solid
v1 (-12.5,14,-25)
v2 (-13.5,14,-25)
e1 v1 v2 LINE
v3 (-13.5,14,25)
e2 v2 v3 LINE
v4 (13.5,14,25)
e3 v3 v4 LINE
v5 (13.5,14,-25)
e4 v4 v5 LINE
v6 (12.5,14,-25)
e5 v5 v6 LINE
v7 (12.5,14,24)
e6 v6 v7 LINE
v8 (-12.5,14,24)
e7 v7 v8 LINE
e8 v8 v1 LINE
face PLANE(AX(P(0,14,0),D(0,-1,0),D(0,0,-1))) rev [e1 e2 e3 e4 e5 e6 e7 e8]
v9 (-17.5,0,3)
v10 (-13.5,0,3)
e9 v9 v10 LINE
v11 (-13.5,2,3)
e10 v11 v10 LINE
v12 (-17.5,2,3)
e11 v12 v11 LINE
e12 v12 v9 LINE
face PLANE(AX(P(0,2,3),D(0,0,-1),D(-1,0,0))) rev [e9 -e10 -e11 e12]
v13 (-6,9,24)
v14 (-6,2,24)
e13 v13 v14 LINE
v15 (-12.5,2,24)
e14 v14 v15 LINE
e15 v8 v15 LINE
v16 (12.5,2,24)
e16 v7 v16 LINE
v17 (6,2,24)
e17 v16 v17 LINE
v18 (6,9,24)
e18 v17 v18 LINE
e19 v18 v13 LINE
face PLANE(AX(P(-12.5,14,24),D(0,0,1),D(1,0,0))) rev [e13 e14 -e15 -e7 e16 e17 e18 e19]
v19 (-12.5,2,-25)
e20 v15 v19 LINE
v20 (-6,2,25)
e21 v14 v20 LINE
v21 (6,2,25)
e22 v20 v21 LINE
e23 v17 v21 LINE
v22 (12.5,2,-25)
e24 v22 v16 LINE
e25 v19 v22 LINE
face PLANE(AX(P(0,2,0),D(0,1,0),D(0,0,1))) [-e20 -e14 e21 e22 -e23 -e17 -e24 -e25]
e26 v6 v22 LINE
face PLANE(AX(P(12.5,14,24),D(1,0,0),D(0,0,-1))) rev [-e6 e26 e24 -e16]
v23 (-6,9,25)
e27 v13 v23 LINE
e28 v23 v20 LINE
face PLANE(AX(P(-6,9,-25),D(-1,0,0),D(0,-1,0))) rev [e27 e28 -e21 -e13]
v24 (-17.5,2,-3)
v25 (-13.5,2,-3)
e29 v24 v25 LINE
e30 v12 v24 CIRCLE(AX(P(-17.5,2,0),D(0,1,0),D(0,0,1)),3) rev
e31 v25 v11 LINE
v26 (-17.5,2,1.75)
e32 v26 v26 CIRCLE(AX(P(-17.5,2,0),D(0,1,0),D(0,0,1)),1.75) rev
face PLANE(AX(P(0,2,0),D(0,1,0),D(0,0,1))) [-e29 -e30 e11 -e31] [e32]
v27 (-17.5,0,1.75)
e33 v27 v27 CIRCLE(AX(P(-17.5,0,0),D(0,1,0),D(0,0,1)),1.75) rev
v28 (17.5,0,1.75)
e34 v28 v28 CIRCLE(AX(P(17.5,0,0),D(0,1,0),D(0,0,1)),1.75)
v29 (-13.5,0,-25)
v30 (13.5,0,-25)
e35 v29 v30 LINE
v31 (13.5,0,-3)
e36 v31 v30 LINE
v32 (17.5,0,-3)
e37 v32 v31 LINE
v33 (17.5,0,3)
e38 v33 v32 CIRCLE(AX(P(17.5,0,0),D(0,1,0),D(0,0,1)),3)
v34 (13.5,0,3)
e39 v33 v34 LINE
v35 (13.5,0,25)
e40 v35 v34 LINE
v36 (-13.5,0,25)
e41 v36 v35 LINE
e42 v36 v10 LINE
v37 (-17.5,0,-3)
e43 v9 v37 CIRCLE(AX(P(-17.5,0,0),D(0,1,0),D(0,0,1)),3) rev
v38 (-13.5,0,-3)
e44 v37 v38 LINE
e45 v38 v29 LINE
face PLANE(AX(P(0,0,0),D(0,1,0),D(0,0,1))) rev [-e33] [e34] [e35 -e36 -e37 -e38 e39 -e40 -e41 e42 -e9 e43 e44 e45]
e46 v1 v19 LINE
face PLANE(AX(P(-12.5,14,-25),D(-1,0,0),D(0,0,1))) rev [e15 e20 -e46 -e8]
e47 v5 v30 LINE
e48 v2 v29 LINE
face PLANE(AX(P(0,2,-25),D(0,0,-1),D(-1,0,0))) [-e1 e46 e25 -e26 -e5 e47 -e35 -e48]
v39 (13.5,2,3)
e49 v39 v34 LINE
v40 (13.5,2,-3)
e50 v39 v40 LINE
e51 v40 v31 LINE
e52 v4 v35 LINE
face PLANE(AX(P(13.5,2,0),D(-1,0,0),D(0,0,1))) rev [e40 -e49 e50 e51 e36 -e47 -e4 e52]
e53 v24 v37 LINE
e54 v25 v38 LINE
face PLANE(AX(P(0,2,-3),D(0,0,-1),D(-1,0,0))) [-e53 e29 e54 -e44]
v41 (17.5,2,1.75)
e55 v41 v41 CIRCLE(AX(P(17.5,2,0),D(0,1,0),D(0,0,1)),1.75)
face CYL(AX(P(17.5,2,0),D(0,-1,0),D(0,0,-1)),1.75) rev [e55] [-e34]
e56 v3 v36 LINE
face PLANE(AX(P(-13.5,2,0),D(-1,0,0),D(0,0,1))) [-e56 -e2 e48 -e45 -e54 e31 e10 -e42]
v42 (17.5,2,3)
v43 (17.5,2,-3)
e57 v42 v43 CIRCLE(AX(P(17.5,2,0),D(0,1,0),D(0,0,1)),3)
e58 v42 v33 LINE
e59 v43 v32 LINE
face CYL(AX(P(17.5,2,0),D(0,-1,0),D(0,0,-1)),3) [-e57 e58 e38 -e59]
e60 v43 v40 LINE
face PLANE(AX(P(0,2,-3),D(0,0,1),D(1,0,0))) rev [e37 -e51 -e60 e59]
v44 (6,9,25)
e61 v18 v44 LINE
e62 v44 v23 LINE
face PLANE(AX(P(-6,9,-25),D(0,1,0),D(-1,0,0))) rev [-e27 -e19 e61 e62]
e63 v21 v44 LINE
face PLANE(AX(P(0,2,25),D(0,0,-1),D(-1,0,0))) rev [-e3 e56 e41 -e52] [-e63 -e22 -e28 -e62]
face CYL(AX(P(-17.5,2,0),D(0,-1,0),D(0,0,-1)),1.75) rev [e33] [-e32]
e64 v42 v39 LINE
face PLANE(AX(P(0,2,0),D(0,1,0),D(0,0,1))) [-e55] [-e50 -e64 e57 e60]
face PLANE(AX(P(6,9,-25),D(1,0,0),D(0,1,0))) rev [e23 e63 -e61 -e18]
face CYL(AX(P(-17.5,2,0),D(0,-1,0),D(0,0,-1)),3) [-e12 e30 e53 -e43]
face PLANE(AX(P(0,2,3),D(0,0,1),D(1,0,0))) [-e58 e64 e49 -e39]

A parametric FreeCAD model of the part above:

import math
import FreeCAD as App
import Part
import Sketcher

V = App.Vector
Q = App.Units.Quantity

doc = App.newDocument("Part")
body = doc.addObject("PartDesign::Body", "Body")

# Sketch on XZ plane
sketch1 = body.newObject("Sketcher::SketchObject", "Sketch")
sketch1.AttachmentSupport = (doc.getObject("XZ_Plane"), [""])
sketch1.MapMode = "FlatFace"
sketch1.addGeometry(Part.LineSegment(V(-13.5, 3, 0), V(-13.5, 25, 0)), False)
sketch1.addGeometry(Part.LineSegment(V(-13.5, 25, 0), V(13.5, 25, 0)), False)
sketch1.addGeometry(Part.LineSegment(V(13.5, 25, 0), V(13.5, 3, 0)), False)
sketch1.addGeometry(Part.LineSegment(V(13.5, 3, 0), V(17.5, 3, 0)), False)
sketch1.addGeometry(Part.ArcOfCircle(Part.Circle(V(17.5, 0, 0), V(0, 0, 1), 3), math.radians(-90), math.radians(90)), False)
sketch1.addGeometry(Part.LineSegment(V(17.5, -3, 0), V(13.5, -3, 0)), False)
sketch1.addGeometry(Part.LineSegment(V(13.5, -3, 0), V(13.5, -25, 0)), False)
sketch1.addGeometry(Part.LineSegment(V(13.5, -25, 0), V(-13.5, -25, 0)), False)
sketch1.addGeometry(Part.LineSegment(V(-13.5, -25, 0), V(-13.5, -3, 0)), False)
sketch1.addGeometry(Part.LineSegment(V(-13.5, -3, 0), V(-17.5, -3, 0)), False)
sketch1.addGeometry(Part.ArcOfCircle(Part.Circle(V(-17.5, 0, 0), V(0, 0, 1), 3), math.radians(90), math.radians(270)), False)
sketch1.addGeometry(Part.LineSegment(V(-17.5, 3, 0), V(-13.5, 3, 0)), False)
sketch1.addGeometry(Part.Circle(V(-17.5, 0, 0), V(0, 0, 1), 1.75), False)
sketch1.addGeometry(Part.Circle(V(17.5, 0, 0), V(0, 0, 1), 1.75), False)
sketch1.addConstraint(Sketcher.Constraint("Coincident", 0, 2, 1, 1))
sketch1.addConstraint(Sketcher.Constraint("Coincident", 1, 2, 2, 1))
sketch1.addConstraint(Sketcher.Constraint("Coincident", 2, 2, 3, 1))
sketch1.addConstraint(Sketcher.Constraint("Tangent", 3, 2, 4, 2))
sketch1.addConstraint(Sketcher.Constraint("Tangent", 4, 1, 5, 1))
sketch1.addConstraint(Sketcher.Constraint("Coincident", 5, 2, 6, 1))
sketch1.addConstraint(Sketcher.Constraint("Coincident", 6, 2, 7, 1))
sketch1.addConstraint(Sketcher.Constraint("Coincident", 7, 2, 8, 1))
sketch1.addConstraint(Sketcher.Constraint("Coincident", 8, 2, 9, 1))
sketch1.addConstraint(Sketcher.Constraint("Tangent", 9, 2, 10, 2))
sketch1.addConstraint(Sketcher.Constraint("Tangent", 10, 1, 11, 1))
sketch1.addConstraint(Sketcher.Constraint("Coincident", 11, 2, 0, 1))
sketch1.addConstraint(Sketcher.Constraint("Vertical", 0))
sketch1.addConstraint(Sketcher.Constraint("Horizontal", 1))
sketch1.addConstraint(Sketcher.Constraint("Vertical", 2))
sketch1.addConstraint(Sketcher.Constraint("Horizontal", 3))
sketch1.addConstraint(Sketcher.Constraint("Horizontal", 5))
sketch1.addConstraint(Sketcher.Constraint("Vertical", 6))
sketch1.addConstraint(Sketcher.Constraint("Horizontal", 7))
sketch1.addConstraint(Sketcher.Constraint("Vertical", 8))
sketch1.addConstraint(Sketcher.Constraint("Horizontal", 9))
sketch1.addConstraint(Sketcher.Constraint("Horizontal", 11))
sketch1.addConstraint(Sketcher.Constraint("Coincident", 12, 3, 10, 3))
sketch1.addConstraint(Sketcher.Constraint("Coincident", 13, 3, 4, 3))
sketch1.addConstraint(Sketcher.Constraint("Equal", 4, 10))
sketch1.addConstraint(Sketcher.Constraint("Equal", 12, 13))
sketch1.addConstraint(Sketcher.Constraint("Symmetric", 4, 3, 10, 3, -1, 1))
sketch1.addConstraint(Sketcher.Constraint("Symmetric", 0, 2, 6, 2, -1, 1))
sketch1.addConstraint(Sketcher.Constraint("Symmetric", 5, 2, 8, 2, -2))
sketch1.addConstraint(Sketcher.Constraint("Vertical", 2, 2, 5, 2))
sketch1.addConstraint(Sketcher.Constraint("Radius", 4, Q("3 mm")))
sketch1.addConstraint(Sketcher.Constraint("Diameter", 12, Q("3.5 mm")))
sketch1.addConstraint(Sketcher.Constraint("DistanceX", 1, 1, 1, 2, Q("27 mm")))
sketch1.addConstraint(Sketcher.Constraint("DistanceX", 3, 1, 3, 2, Q("4 mm")))
sketch1.addConstraint(Sketcher.Constraint("DistanceY", 0, 1, 0, 2, Q("22 mm")))
pad1 = body.newObject("PartDesign::Pad", "Pad")
pad1.Profile = sketch1
pad1.Length = 2
pad1.Reversed = True

# Sketch on XZ plane
sketch2 = body.newObject("Sketcher::SketchObject", "Sketch001")
sketch2.AttachmentSupport = (doc.getObject("XZ_Plane"), [""])
sketch2.MapMode = "FlatFace"
sketch2.AttachmentOffset = App.Placement(V(0, 0, -2), App.Rotation())
sketch2.addGeometry(Part.LineSegment(V(-13.5, -25, 0), V(-13.5, 25, 0)), False)
sketch2.addGeometry(Part.LineSegment(V(-13.5, 25, 0), V(13.5, 25, 0)), False)
sketch2.addGeometry(Part.LineSegment(V(13.5, 25, 0), V(13.5, -25, 0)), False)
sketch2.addGeometry(Part.LineSegment(V(13.5, -25, 0), V(12.5, -25, 0)), False)
sketch2.addGeometry(Part.LineSegment(V(12.5, -25, 0), V(12.5, 24, 0)), False)
sketch2.addGeometry(Part.LineSegment(V(12.5, 24, 0), V(-12.5, 24, 0)), False)
sketch2.addGeometry(Part.LineSegment(V(-12.5, 24, 0), V(-12.5, -25, 0)), False)
sketch2.addGeometry(Part.LineSegment(V(-12.5, -25, 0), V(-13.5, -25, 0)), False)
sketch2.addConstraint(Sketcher.Constraint("Coincident", 0, 2, 1, 1))
sketch2.addConstraint(Sketcher.Constraint("Coincident", 1, 2, 2, 1))
sketch2.addConstraint(Sketcher.Constraint("Coincident", 2, 2, 3, 1))
sketch2.addConstraint(Sketcher.Constraint("Coincident", 3, 2, 4, 1))
sketch2.addConstraint(Sketcher.Constraint("Coincident", 4, 2, 5, 1))
sketch2.addConstraint(Sketcher.Constraint("Coincident", 5, 2, 6, 1))
sketch2.addConstraint(Sketcher.Constraint("Coincident", 6, 2, 7, 1))
sketch2.addConstraint(Sketcher.Constraint("Coincident", 7, 2, 0, 1))
sketch2.addConstraint(Sketcher.Constraint("Vertical", 0))
sketch2.addConstraint(Sketcher.Constraint("Horizontal", 1))
sketch2.addConstraint(Sketcher.Constraint("Vertical", 2))
sketch2.addConstraint(Sketcher.Constraint("Horizontal", 3))
sketch2.addConstraint(Sketcher.Constraint("Vertical", 4))
sketch2.addConstraint(Sketcher.Constraint("Horizontal", 5))
sketch2.addConstraint(Sketcher.Constraint("Vertical", 6))
sketch2.addConstraint(Sketcher.Constraint("Horizontal", 7))
sketch2.addConstraint(Sketcher.Constraint("Symmetric", 0, 2, 2, 2, -1, 1))
sketch2.addConstraint(Sketcher.Constraint("Symmetric", 3, 2, 6, 2, -2))
sketch2.addConstraint(Sketcher.Constraint("DistanceX", 1, 1, 1, 2, Q("27 mm")))
sketch2.addConstraint(Sketcher.Constraint("DistanceX", 3, 2, 3, 1, Q("1 mm")))
sketch2.addConstraint(Sketcher.Constraint("DistanceY", 0, 1, 0, 2, Q("50 mm")))
sketch2.addConstraint(Sketcher.Constraint("DistanceY", 4, 1, 4, 2, Q("49 mm")))
pad2 = body.newObject("PartDesign::Pad", "Pad001")
pad2.Profile = sketch2
pad2.Length = 12
pad2.Reversed = True

# Sketch on XY plane
sketch3 = body.newObject("Sketcher::SketchObject", "Sketch002")
sketch3.AttachmentSupport = (doc.getObject("XY_Plane"), [""])
sketch3.MapMode = "FlatFace"
sketch3.AttachmentOffset = App.Placement(V(0, 0, 25), App.Rotation())
sketch3.addGeometry(Part.LineSegment(V(-6, 9, 0), V(-6, 2, 0)), False)
sketch3.addGeometry(Part.LineSegment(V(-6, 2, 0), V(6, 2, 0)), False)
sketch3.addGeometry(Part.LineSegment(V(6, 2, 0), V(6, 9, 0)), False)
sketch3.addGeometry(Part.LineSegment(V(6, 9, 0), V(-6, 9, 0)), False)
sketch3.addConstraint(Sketcher.Constraint("Coincident", 0, 2, 1, 1))
sketch3.addConstraint(Sketcher.Constraint("Coincident", 1, 2, 2, 1))
sketch3.addConstraint(Sketcher.Constraint("Coincident", 2, 2, 3, 1))
sketch3.addConstraint(Sketcher.Constraint("Coincident", 3, 2, 0, 1))
sketch3.addConstraint(Sketcher.Constraint("Vertical", 0))
sketch3.addConstraint(Sketcher.Constraint("Horizontal", 1))
sketch3.addConstraint(Sketcher.Constraint("Vertical", 2))
sketch3.addConstraint(Sketcher.Constraint("Horizontal", 3))
sketch3.addConstraint(Sketcher.Constraint("DistanceX", 1, 1, 1, 2, Q("12 mm")))
sketch3.addConstraint(Sketcher.Constraint("DistanceY", 0, 2, 0, 1, Q("7 mm")))
sketch3.addConstraint(Sketcher.Constraint("DistanceX", 0, 2, -1, 1, Q("6 mm")))
sketch3.addConstraint(Sketcher.Constraint("DistanceY", -1, 1, 0, 2, Q("2 mm")))
pocket1 = body.newObject("PartDesign::Pocket", "Pocket")
pocket1.Profile = sketch3
pocket1.Type = "ThroughAll"

doc.recompute()
